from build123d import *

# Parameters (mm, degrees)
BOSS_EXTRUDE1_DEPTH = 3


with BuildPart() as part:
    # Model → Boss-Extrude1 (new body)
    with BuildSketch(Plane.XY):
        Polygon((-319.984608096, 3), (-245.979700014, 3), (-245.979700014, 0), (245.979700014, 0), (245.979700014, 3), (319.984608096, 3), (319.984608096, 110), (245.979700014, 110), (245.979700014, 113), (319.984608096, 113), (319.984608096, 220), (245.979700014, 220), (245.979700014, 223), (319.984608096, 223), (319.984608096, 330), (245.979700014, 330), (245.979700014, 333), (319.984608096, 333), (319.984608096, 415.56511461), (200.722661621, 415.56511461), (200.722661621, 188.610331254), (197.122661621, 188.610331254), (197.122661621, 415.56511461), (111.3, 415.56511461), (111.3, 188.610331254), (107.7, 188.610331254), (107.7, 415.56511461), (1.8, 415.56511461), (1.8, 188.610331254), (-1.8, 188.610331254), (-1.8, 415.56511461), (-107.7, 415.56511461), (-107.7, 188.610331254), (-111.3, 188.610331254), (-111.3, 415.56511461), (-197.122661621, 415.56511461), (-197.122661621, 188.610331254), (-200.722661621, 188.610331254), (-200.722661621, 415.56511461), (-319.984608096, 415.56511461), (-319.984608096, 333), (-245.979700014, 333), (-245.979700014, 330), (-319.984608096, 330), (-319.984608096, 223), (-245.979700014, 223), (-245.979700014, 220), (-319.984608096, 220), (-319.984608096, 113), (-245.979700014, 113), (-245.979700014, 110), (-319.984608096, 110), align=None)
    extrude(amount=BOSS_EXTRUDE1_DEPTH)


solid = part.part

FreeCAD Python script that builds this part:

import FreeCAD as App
import Part
import Sketcher

V = App.Vector

doc = App.newDocument("Part")
body = doc.addObject("PartDesign::Body", "Body")

# Sketch on XY plane
sketch1 = body.newObject("Sketcher::SketchObject", "Sketch")
sketch1.AttachmentSupport = (doc.getObject("XY_Plane"), [""])
sketch1.MapMode = "FlatFace"
sketch1.addGeometry([
    Part.LineSegment(V(-319.984608, 3, 0), V(-245.9797, 3, 0)),  # 0
    Part.LineSegment(V(-245.9797, 3, 0), V(-245.9797, 0, 0)),  # 1
    Part.LineSegment(V(-245.9797, 0, 0), V(245.9797, 0, 0)),  # 2
    Part.LineSegment(V(245.9797, 0, 0), V(245.9797, 3, 0)),  # 3
    Part.LineSegment(V(245.9797, 3, 0), V(319.984608, 3, 0)),  # 4
    Part.LineSegment(V(319.984608, 3, 0), V(319.984608, 110, 0)),  # 5
    Part.LineSegment(V(319.984608, 110, 0), V(245.9797, 110, 0)),  # 6
    Part.LineSegment(V(245.9797, 110, 0), V(245.9797, 113, 0)),  # 7
    Part.LineSegment(V(245.9797, 113, 0), V(319.984608, 113, 0)),  # 8
    Part.LineSegment(V(319.984608, 113, 0), V(319.984608, 220, 0)),  # 9
    Part.LineSegment(V(319.984608, 220, 0), V(245.9797, 220, 0)),  # 10
    Part.LineSegment(V(245.9797, 220, 0), V(245.9797, 223, 0)),  # 11
    Part.LineSegment(V(245.9797, 223, 0), V(319.984608, 223, 0)),  # 12
    Part.LineSegment(V(319.984608, 223, 0), V(319.984608, 330, 0)),  # 13
    Part.LineSegment(V(319.984608, 330, 0), V(245.9797, 330, 0)),  # 14
    Part.LineSegment(V(245.9797, 330, 0), V(245.9797, 333, 0)),  # 15
    Part.LineSegment(V(245.9797, 333, 0), V(319.984608, 333, 0)),  # 16
    Part.LineSegment(V(319.984608, 333, 0), V(319.984608, 415.565115, 0)),  # 17
    Part.LineSegment(V(319.984608, 415.565115, 0), V(200.722662, 415.565115, 0)),  # 18
    Part.LineSegment(V(200.722662, 415.565115, 0), V(200.722662, 188.610331, 0)),  # 19
    Part.LineSegment(V(200.722662, 188.610331, 0), V(197.122662, 188.610331, 0)),  # 20
    Part.LineSegment(V(197.122662, 188.610331, 0), V(197.122662, 415.565115, 0)),  # 21
    Part.LineSegment(V(197.122662, 415.565115, 0), V(111.3, 415.565115, 0)),  # 22
    Part.LineSegment(V(111.3, 415.565115, 0), V(111.3, 188.610331, 0)),  # 23
    Part.LineSegment(V(111.3, 188.610331, 0), V(107.7, 188.610331, 0)),  # 24
    Part.LineSegment(V(107.7, 188.610331, 0), V(107.7, 415.565115, 0)),  # 25
    Part.LineSegment(V(107.7, 415.565115, 0), V(1.8, 415.565115, 0)),  # 26
    Part.LineSegment(V(1.8, 415.565115, 0), V(1.8, 188.610331, 0)),  # 27
    Part.LineSegment(V(1.8, 188.610331, 0), V(-1.8, 188.610331, 0)),  # 28
    Part.LineSegment(V(-1.8, 188.610331, 0), V(-1.8, 415.565115, 0)),  # 29
    Part.LineSegment(V(-1.8, 415.565115, 0), V(-107.7, 415.565115, 0)),  # 30
    Part.LineSegment(V(-107.7, 415.565115, 0), V(-107.7, 188.610331, 0)),  # 31
    Part.LineSegment(V(-107.7, 188.610331, 0), V(-111.3, 188.610331, 0)),  # 32
    Part.LineSegment(V(-111.3, 188.610331, 0), V(-111.3, 415.565115, 0)),  # 33
    Part.LineSegment(V(-111.3, 415.565115, 0), V(-197.122662, 415.565115, 0)),  # 34
    Part.LineSegment(V(-197.122662, 415.565115, 0), V(-197.122662, 188.610331, 0)),  # 35
    Part.LineSegment(V(-197.122662, 188.610331, 0), V(-200.722662, 188.610331, 0)),  # 36
    Part.LineSegment(V(-200.722662, 188.610331, 0), V(-200.722662, 415.565115, 0)),  # 37
    Part.LineSegment(V(-200.722662, 415.565115, 0), V(-319.984608, 415.565115, 0)),  # 38
    Part.LineSegment(V(-319.984608, 415.565115, 0), V(-319.984608, 333, 0)),  # 39
    Part.LineSegment(V(-319.984608, 333, 0), V(-245.9797, 333, 0)),  # 40
    Part.LineSegment(V(-245.9797, 333, 0), V(-245.9797, 330, 0)),  # 41
    Part.LineSegment(V(-245.9797, 330, 0), V(-319.984608, 330, 0)),  # 42
    Part.LineSegment(V(-319.984608, 330, 0), V(-319.984608, 223, 0)),  # 43
    Part.LineSegment(V(-319.984608, 223, 0), V(-245.9797, 223, 0)),  # 44
    Part.LineSegment(V(-245.9797, 223, 0), V(-245.9797, 220, 0)),  # 45
    Part.LineSegment(V(-245.9797, 220, 0), V(-319.984608, 220, 0)),  # 46
    Part.LineSegment(V(-319.984608, 220, 0), V(-319.984608, 113, 0)),  # 47
    Part.LineSegment(V(-319.984608, 113, 0), V(-245.9797, 113, 0)),  # 48
    Part.LineSegment(V(-245.9797, 113, 0), V(-245.9797, 110, 0)),  # 49
    Part.LineSegment(V(-245.9797, 110, 0), V(-319.984608, 110, 0)),  # 50
    Part.LineSegment(V(-319.984608, 110, 0), V(-319.984608, 3, 0)),  # 51
], False)
sketch1.addConstraint([
    Sketcher.Constraint("Coincident", 0, 2, 1, 1),
    Sketcher.Constraint("Coincident", 1, 2, 2, 1),
    Sketcher.Constraint("Coincident", 2, 2, 3, 1),
    Sketcher.Constraint("Coincident", 3, 2, 4, 1),
    Sketcher.Constraint("Coincident", 4, 2, 5, 1),
    Sketcher.Constraint("Coincident", 5, 2, 6, 1),
    Sketcher.Constraint("Coincident", 6, 2, 7, 1),
    Sketcher.Constraint("Coincident", 7, 2, 8, 1),
    Sketcher.Constraint("Coincident", 8, 2, 9, 1),
    Sketcher.Constraint("Coincident", 9, 2, 10, 1),
    Sketcher.Constraint("Coincident", 10, 2, 11, 1),
    Sketcher.Constraint("Coincident", 11, 2, 12, 1),
    Sketcher.Constraint("Coincident", 12, 2, 13, 1),
    Sketcher.Constraint("Coincident", 13, 2, 14, 1),
    Sketcher.Constraint("Coincident", 14, 2, 15, 1),
    Sketcher.Constraint("Coincident", 15, 2, 16, 1),
    Sketcher.Constraint("Coincident", 16, 2, 17, 1),
    Sketcher.Constraint("Coincident", 17, 2, 18, 1),
    Sketcher.Constraint("Coincident", 18, 2, 19, 1),
    Sketcher.Constraint("Coincident", 19, 2, 20, 1),
    Sketcher.Constraint("Coincident", 20, 2, 21, 1),
    Sketcher.Constraint("Coincident", 21, 2, 22, 1),
    Sketcher.Constraint("Coincident", 22, 2, 23, 1),
    Sketcher.Constraint("Coincident", 23, 2, 24, 1),
    Sketcher.Constraint("Coincident", 24, 2, 25, 1),
    Sketcher.Constraint("Coincident", 25, 2, 26, 1),
    Sketcher.Constraint("Coincident", 26, 2, 27, 1),
    Sketcher.Constraint("Coincident", 27, 2, 28, 1),
    Sketcher.Constraint("Coincident", 28, 2, 29, 1),
    Sketcher.Constraint("Coincident", 29, 2, 30, 1),
    Sketcher.Constraint("Coincident", 30, 2, 31, 1),
    Sketcher.Constraint("Coincident", 31, 2, 32, 1),
    Sketcher.Constraint("Coincident", 32, 2, 33, 1),
    Sketcher.Constraint("Coincident", 33, 2, 34, 1),
    Sketcher.Constraint("Coincident", 34, 2, 35, 1),
    Sketcher.Constraint("Coincident", 35, 2, 36, 1),
    Sketcher.Constraint("Coincident", 36, 2, 37, 1),
    Sketcher.Constraint("Coincident", 37, 2, 38, 1),
    Sketcher.Constraint("Coincident", 38, 2, 39, 1),
    Sketcher.Constraint("Coincident", 39, 2, 40, 1),
    Sketcher.Constraint("Coincident", 40, 2, 41, 1),
    Sketcher.Constraint("Coincident", 41, 2, 42, 1),
    Sketcher.Constraint("Coincident", 42, 2, 43, 1),
    Sketcher.Constraint("Coincident", 43, 2, 44, 1),
    Sketcher.Constraint("Coincident", 44, 2, 45, 1),
    Sketcher.Constraint("Coincident", 45, 2, 46, 1),
    Sketcher.Constraint("Coincident", 46, 2, 47, 1),
    Sketcher.Constraint("Coincident", 47, 2, 48, 1),
    Sketcher.Constraint("Coincident", 48, 2, 49, 1),
    Sketcher.Constraint("Coincident", 49, 2, 50, 1),
    Sketcher.Constraint("Coincident", 50, 2, 51, 1),
    Sketcher.Constraint("Coincident", 51, 2, 0, 1),
    Sketcher.Constraint("Horizontal", 0),
    Sketcher.Constraint("Vertical", 1),
    Sketcher.Constraint("Horizontal", 2),
    Sketcher.Constraint("Vertical", 3),
    Sketcher.Constraint("Horizontal", 4),
    Sketcher.Constraint("Vertical", 5),
    Sketcher.Constraint("Horizontal", 6),
    Sketcher.Constraint("Vertical", 7),
    Sketcher.Constraint("Horizontal", 8),
    Sketcher.Constraint("Vertical", 9),
    Sketcher.Constraint("Horizontal", 10),
    Sketcher.Constraint("Vertical", 11),
    Sketcher.Constraint("Horizontal", 12),
    Sketcher.Constraint("Vertical", 13),
    Sketcher.Constraint("Horizontal", 14),
    Sketcher.Constraint("Vertical", 15),
    Sketcher.Constraint("Horizontal", 16),
    Sketcher.Constraint("Vertical", 17),
    Sketcher.Constraint("Horizontal", 18),
    Sketcher.Constraint("Vertical", 19),
    Sketcher.Constraint("Horizontal", 20),
    Sketcher.Constraint("Vertical", 21),
    Sketcher.Constraint("Horizontal", 22),
    Sketcher.Constraint("Vertical", 23),
    Sketcher.Constraint("Horizontal", 24),
    Sketcher.Constraint("Vertical", 25),
    Sketcher.Constraint("Horizontal", 26),
    Sketcher.Constraint("Vertical", 27),
    Sketcher.Constraint("Horizontal", 28),
    Sketcher.Constraint("Vertical", 29),
    Sketcher.Constraint("Horizontal", 30),
    Sketcher.Constraint("Vertical", 31),
    Sketcher.Constraint("Horizontal", 32),
    Sketcher.Constraint("Vertical", 33),
    Sketcher.Constraint("Horizontal", 34),
    Sketcher.Constraint("Vertical", 35),
    Sketcher.Constraint("Horizontal", 36),
    Sketcher.Constraint("Vertical", 37),
    Sketcher.Constraint("Horizontal", 38),
    Sketcher.Constraint("Vertical", 39),
    Sketcher.Constraint("Horizontal", 40),
    Sketcher.Constraint("Vertical", 41),
    Sketcher.Constraint("Horizontal", 42),
    Sketcher.Constraint("Vertical", 43),
    Sketcher.Constraint("Horizontal", 44),
    Sketcher.Constraint("Vertical", 45),
    Sketcher.Constraint("Horizontal", 46),
    Sketcher.Constraint("Vertical", 47),
    Sketcher.Constraint("Horizontal", 48),
    Sketcher.Constraint("Vertical", 49),
    Sketcher.Constraint("Horizontal", 50),
    Sketcher.Constraint("Vertical", 51),
    Sketcher.Constraint("Symmetric", 1, 2, 2, 2, -1, 1),
    Sketcher.Constraint("Symmetric", 26, 2, 29, 2, -2),
    Sketcher.Constraint("Symmetric", 24, 2, 31, 2, -2),
    Sketcher.Constraint("Symmetric", 22, 2, 33, 2, -2),
    Sketcher.Constraint("Symmetric", 20, 2, 35, 2, -2),
    Sketcher.Constraint("Symmetric", 18, 2, 37, 2, -2),
    Sketcher.Constraint("Symmetric", 16, 2, 39, 2, -2),
    Sketcher.Constraint("Symmetric", 14, 2, 41, 2, -2),
    Sketcher.Constraint("Symmetric", 12, 2, 43, 2, -2),
    Sketcher.Constraint("Symmetric", 10, 2, 45, 2, -2),
    Sketcher.Constraint("Symmetric", 8, 2, 47, 2, -2),
    Sketcher.Constraint("Symmetric", 6, 2, 49, 2, -2),
    Sketcher.Constraint("Symmetric", 4, 2, 51, 2, -2),
    Sketcher.Constraint("Horizontal", 18, 2, 21, 2),
    Sketcher.Constraint("Horizontal", 20, 2, 23, 2),
    Sketcher.Constraint("Horizontal", 22, 2, 25, 2),
    Sketcher.Constraint("Horizontal", 24, 2, 27, 2),
    Sketcher.Constraint("Vertical", 3, 2, 6, 2),
    Sketcher.Constraint("Vertical", 5, 2, 8, 2),
    Sketcher.Constraint("Vertical", 7, 2, 10, 2),
    Sketcher.Constraint("Vertical", 9, 2, 12, 2),
    Sketcher.Constraint("Vertical", 11, 2, 14, 2),
    Sketcher.Constraint("Vertical", 13, 2, 16, 2),
    Sketcher.Constraint("Equal", 20, 24),
    Sketcher.Constraint("Equal", 24, 28),
    Sketcher.Constraint("Equal", 3, 7),
    Sketcher.Constraint("Equal", 5, 9),
    Sketcher.Constraint("Equal", 7, 11),
    Sketcher.Constraint("Equal", 9, 13),
    Sketcher.Constraint("Equal", 11, 15),
    Sketcher.Constraint("DistanceY", 1, 2, 1, 1, 3.0),
    Sketcher.Constraint("DistanceY", 5, 1, 5, 2, 107.0),
    Sketcher.Constraint("DistanceX", 20, 2, 20, 1, 3.6),
    Sketcher.Constraint("DistanceX", 26, 2, 26, 1, 105.9),
    Sketcher.Constraint("DistanceX", 2, 1, 2, 2, 491.9594),
    Sketcher.Constraint("DistanceX", 0, 1, 0, 2, 74.004908),
    Sketcher.Constraint("DistanceX", 22, 2, 22, 1, 85.822662),
    Sketcher.Constraint("DistanceY", 17, 1, 17, 2, 82.565115),
    Sketcher.Constraint("DistanceY", 19, 2, 19, 1, 226.954783),
])
pad1 = body.newObject("PartDesign::Pad", "Pad")
pad1.Profile = sketch1
pad1.Length = 3

doc.recompute()
